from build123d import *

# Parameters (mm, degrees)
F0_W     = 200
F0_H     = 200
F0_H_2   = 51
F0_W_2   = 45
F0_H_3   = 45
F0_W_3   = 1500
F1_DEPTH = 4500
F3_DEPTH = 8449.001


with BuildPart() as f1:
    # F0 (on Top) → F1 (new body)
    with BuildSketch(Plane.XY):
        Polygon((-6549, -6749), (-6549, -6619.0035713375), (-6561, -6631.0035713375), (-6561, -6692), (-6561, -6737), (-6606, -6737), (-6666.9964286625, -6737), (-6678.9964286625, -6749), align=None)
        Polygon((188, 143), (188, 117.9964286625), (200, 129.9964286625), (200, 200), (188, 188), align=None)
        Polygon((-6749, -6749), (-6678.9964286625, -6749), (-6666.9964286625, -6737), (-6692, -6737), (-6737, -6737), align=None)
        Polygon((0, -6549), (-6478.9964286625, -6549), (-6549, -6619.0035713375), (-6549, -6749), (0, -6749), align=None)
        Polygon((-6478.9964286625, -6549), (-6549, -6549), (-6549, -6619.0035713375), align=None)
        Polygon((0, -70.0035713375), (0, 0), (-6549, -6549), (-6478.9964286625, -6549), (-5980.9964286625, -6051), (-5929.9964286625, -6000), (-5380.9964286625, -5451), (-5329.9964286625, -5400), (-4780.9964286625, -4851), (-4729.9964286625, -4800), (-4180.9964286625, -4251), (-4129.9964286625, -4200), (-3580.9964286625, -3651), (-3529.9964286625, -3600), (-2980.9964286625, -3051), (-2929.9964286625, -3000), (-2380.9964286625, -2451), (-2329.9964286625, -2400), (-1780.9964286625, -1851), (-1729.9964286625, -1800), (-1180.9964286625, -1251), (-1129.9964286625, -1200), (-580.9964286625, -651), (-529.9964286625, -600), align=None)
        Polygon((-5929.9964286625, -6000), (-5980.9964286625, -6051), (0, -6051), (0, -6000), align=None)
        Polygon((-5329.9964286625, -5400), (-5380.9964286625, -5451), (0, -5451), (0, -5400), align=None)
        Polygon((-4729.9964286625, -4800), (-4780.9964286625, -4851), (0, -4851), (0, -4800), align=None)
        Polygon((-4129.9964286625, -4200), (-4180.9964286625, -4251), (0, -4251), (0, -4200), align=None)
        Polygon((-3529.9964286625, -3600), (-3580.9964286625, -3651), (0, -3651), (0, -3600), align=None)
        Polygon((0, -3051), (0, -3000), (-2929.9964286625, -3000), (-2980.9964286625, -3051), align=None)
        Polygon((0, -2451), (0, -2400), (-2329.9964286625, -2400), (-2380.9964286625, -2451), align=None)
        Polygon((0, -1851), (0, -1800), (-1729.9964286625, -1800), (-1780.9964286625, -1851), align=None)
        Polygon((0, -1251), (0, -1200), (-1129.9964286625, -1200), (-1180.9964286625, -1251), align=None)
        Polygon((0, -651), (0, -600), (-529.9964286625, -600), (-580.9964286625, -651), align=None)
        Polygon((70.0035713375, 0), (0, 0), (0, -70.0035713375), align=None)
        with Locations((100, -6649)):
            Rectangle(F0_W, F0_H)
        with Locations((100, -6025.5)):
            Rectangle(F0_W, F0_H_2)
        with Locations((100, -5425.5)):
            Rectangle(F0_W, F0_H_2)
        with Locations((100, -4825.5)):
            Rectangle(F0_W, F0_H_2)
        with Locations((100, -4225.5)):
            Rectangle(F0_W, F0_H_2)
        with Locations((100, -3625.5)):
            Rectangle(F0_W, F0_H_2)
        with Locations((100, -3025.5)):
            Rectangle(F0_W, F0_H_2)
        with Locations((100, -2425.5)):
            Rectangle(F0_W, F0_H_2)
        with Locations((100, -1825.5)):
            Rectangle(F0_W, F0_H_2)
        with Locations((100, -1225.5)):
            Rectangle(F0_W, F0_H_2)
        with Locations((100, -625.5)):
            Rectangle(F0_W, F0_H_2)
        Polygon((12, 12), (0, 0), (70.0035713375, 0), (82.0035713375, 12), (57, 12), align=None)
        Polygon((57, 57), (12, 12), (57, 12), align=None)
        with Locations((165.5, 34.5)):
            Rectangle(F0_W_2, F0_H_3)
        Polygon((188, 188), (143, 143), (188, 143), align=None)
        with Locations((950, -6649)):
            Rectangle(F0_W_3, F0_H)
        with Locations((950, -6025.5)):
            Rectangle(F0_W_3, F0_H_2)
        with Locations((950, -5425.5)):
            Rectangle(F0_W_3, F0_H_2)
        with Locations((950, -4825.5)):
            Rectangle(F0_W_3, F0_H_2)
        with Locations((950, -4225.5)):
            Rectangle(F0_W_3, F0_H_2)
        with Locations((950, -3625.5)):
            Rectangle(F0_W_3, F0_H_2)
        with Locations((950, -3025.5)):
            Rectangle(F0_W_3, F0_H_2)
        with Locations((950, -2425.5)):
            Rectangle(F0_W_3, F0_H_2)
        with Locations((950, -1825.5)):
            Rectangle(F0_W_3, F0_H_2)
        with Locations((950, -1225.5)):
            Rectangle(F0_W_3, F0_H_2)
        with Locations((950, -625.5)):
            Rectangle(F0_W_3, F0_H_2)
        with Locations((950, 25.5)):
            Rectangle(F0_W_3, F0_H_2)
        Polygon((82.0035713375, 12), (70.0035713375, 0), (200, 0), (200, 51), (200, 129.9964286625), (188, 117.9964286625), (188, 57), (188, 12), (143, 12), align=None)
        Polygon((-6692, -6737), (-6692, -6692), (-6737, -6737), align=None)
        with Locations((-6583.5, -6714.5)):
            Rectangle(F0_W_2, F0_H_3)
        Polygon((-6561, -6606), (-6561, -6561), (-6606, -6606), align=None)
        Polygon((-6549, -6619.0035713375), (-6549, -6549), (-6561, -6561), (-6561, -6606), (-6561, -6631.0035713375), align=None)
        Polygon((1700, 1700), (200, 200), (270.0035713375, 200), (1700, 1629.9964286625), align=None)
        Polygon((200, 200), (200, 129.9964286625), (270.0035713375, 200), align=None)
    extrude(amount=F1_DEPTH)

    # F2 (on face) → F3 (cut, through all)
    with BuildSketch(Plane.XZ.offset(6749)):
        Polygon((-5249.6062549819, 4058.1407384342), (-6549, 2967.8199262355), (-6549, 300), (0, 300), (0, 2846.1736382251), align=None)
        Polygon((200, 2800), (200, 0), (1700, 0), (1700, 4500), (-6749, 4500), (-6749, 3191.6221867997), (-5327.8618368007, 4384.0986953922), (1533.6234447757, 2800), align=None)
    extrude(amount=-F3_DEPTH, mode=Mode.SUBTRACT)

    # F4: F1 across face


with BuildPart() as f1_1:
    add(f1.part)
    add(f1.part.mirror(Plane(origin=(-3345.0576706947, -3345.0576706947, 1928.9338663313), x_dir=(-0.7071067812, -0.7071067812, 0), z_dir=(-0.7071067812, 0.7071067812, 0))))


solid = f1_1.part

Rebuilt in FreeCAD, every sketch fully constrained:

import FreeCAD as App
import Part
import Sketcher
Q = App.Units.Quantity

doc = App.newDocument("Part")
body = doc.addObject("PartDesign::Body", "Body")

sketch1 = doc.addObject("Sketcher::SketchObject", "Sketch")
body.addObject(sketch1)
sketch1.AttachmentSupport = (doc.XY_Plane, [""])
sketch1.MapMode = "FlatFace"
sketch1.addGeometry([
    Part.LineSegment(App.Vector(-6561, -6692, 0), App.Vector(-6606, -6692, 0)),
    Part.LineSegment(App.Vector(-6606, -6692, 0), App.Vector(-6606, -6737, 0)),
    Part.LineSegment(App.Vector(-6606, -6737, 0), App.Vector(-6692, -6737, 0)),
    Part.LineSegment(App.Vector(-6692, -6737, 0), App.Vector(-6692, -6692, 0)),
    Part.LineSegment(App.Vector(-6692, -6692, 0), App.Vector(-6749, -6749, 0)),
    Part.LineSegment(App.Vector(-6749, -6749, 0), App.Vector(1700, -6749, 0)),
    Part.LineSegment(App.Vector(1700, -6749, 0), App.Vector(1700, -6549, 0)),
    Part.LineSegment(App.Vector(1700, -6549, 0), App.Vector(-6479, -6549, 0)),
    Part.LineSegment(App.Vector(-6479, -6549, 0), App.Vector(-5981, -6051, 0)),
    Part.LineSegment(App.Vector(-5981, -6051, 0), App.Vector(1700, -6051, 0)),
    Part.LineSegment(App.Vector(1700, -6051, 0), App.Vector(1700, -6000, 0)),
    Part.LineSegment(App.Vector(1700, -6000, 0), App.Vector(-5930, -6000, 0)),
    Part.LineSegment(App.Vector(-5930, -6000, 0), App.Vector(-5381, -5451, 0)),
    Part.LineSegment(App.Vector(-5381, -5451, 0), App.Vector(1700, -5451, 0)),
    Part.LineSegment(App.Vector(1700, -5451, 0), App.Vector(1700, -5400, 0)),
    Part.LineSegment(App.Vector(1700, -5400, 0), App.Vector(-5330, -5400, 0)),
    Part.LineSegment(App.Vector(-5330, -5400, 0), App.Vector(-4781, -4851, 0)),
    Part.LineSegment(App.Vector(-4781, -4851, 0), App.Vector(1700, -4851, 0)),
    Part.LineSegment(App.Vector(1700, -4851, 0), App.Vector(1700, -4800, 0)),
    Part.LineSegment(App.Vector(1700, -4800, 0), App.Vector(-4730, -4800, 0)),
    Part.LineSegment(App.Vector(-4730, -4800, 0), App.Vector(-4181, -4251, 0)),
    Part.LineSegment(App.Vector(-4181, -4251, 0), App.Vector(1700, -4251, 0)),
    Part.LineSegment(App.Vector(1700, -4251, 0), App.Vector(1700, -4200, 0)),
    Part.LineSegment(App.Vector(1700, -4200, 0), App.Vector(-4130, -4200, 0)),
    Part.LineSegment(App.Vector(-4130, -4200, 0), App.Vector(-3581, -3651, 0)),
    Part.LineSegment(App.Vector(-3581, -3651, 0), App.Vector(1700, -3651, 0)),
    Part.LineSegment(App.Vector(1700, -3651, 0), App.Vector(1700, -3600, 0)),
    Part.LineSegment(App.Vector(1700, -3600, 0), App.Vector(-3530, -3600, 0)),
    Part.LineSegment(App.Vector(-3530, -3600, 0), App.Vector(-2981, -3051, 0)),
    Part.LineSegment(App.Vector(-2981, -3051, 0), App.Vector(1700, -3051, 0)),
    Part.LineSegment(App.Vector(1700, -3051, 0), App.Vector(1700, -3000, 0)),
    Part.LineSegment(App.Vector(1700, -3000, 0), App.Vector(-2930, -3000, 0)),
    Part.LineSegment(App.Vector(-2930, -3000, 0), App.Vector(-2381, -2451, 0)),
    Part.LineSegment(App.Vector(-2381, -2451, 0), App.Vector(1700, -2451, 0)),
    Part.LineSegment(App.Vector(1700, -2451, 0), App.Vector(1700, -2400, 0)),
    Part.LineSegment(App.Vector(1700, -2400, 0), App.Vector(-2330, -2400, 0)),
    Part.LineSegment(App.Vector(-2330, -2400, 0), App.Vector(-1781, -1851, 0)),
    Part.LineSegment(App.Vector(-1781, -1851, 0), App.Vector(1700, -1851, 0)),
    Part.LineSegment(App.Vector(1700, -1851, 0), App.Vector(1700, -1800, 0)),
    Part.LineSegment(App.Vector(1700, -1800, 0), App.Vector(-1730, -1800, 0)),
    Part.LineSegment(App.Vector(-1730, -1800, 0), App.Vector(-1181, -1251, 0)),
    Part.LineSegment(App.Vector(-1181, -1251, 0), App.Vector(1700, -1251, 0)),
    Part.LineSegment(App.Vector(1700, -1251, 0), App.Vector(1700, -1200, 0)),
    Part.LineSegment(App.Vector(1700, -1200, 0), App.Vector(-1130, -1200, 0)),
    Part.LineSegment(App.Vector(-1130, -1200, 0), App.Vector(-581, -651, 0)),
    Part.LineSegment(App.Vector(-581, -651, 0), App.Vector(1700, -651, 0)),
    Part.LineSegment(App.Vector(1700, -651, 0), App.Vector(1700, -600, 0)),
    Part.LineSegment(App.Vector(1700, -600, 0), App.Vector(-530, -600, 0)),
    Part.LineSegment(App.Vector(-530, -600, 0), App.Vector(70, 0, 0)),
    Part.LineSegment(App.Vector(70, 0, 0), App.Vector(1700, 0, 0)),
    Part.LineSegment(App.Vector(1700, 0, 0), App.Vector(1700, 51, 0)),
    Part.LineSegment(App.Vector(1700, 51, 0), App.Vector(200, 51, 0)),
    Part.LineSegment(App.Vector(200, 51, 0), App.Vector(200, 130, 0)),
    Part.LineSegment(App.Vector(200, 130, 0), App.Vector(1700, 1630, 0)),
    Part.LineSegment(App.Vector(1700, 1630, 0), App.Vector(1700, 1700, 0)),
    Part.LineSegment(App.Vector(1700, 1700, 0), App.Vector(143, 143, 0)),
    Part.LineSegment(App.Vector(143, 143, 0), App.Vector(188, 143, 0)),
    Part.LineSegment(App.Vector(188, 143, 0), App.Vector(188, 57, 0)),
    Part.LineSegment(App.Vector(188, 57, 0), App.Vector(143, 57, 0)),
    Part.LineSegment(App.Vector(143, 57, 0), App.Vector(143, 12, 0)),
    Part.LineSegment(App.Vector(143, 12, 0), App.Vector(57, 12, 0)),
    Part.LineSegment(App.Vector(57, 12, 0), App.Vector(57, 57, 0)),
    Part.LineSegment(App.Vector(57, 57, 0), App.Vector(-6606, -6606, 0)),
    Part.LineSegment(App.Vector(-6606, -6606, 0), App.Vector(-6561, -6606, 0)),
    Part.LineSegment(App.Vector(-6561, -6606, 0), App.Vector(-6561, -6692, 0)),
], False)
sketch1.addConstraint([
    Sketcher.Constraint("Coincident", 0, 2, 1, 1),
    Sketcher.Constraint("Coincident", 1, 2, 2, 1),
    Sketcher.Constraint("Coincident", 2, 2, 3, 1),
    Sketcher.Constraint("Coincident", 3, 2, 4, 1),
    Sketcher.Constraint("Coincident", 4, 2, 5, 1),
    Sketcher.Constraint("Coincident", 5, 2, 6, 1),
    Sketcher.Constraint("Coincident", 6, 2, 7, 1),
    Sketcher.Constraint("Coincident", 7, 2, 8, 1),
    Sketcher.Constraint("Coincident", 8, 2, 9, 1),
    Sketcher.Constraint("Coincident", 9, 2, 10, 1),
    Sketcher.Constraint("Coincident", 10, 2, 11, 1),
    Sketcher.Constraint("Coincident", 11, 2, 12, 1),
    Sketcher.Constraint("Coincident", 12, 2, 13, 1),
    Sketcher.Constraint("Coincident", 13, 2, 14, 1),
    Sketcher.Constraint("Coincident", 14, 2, 15, 1),
    Sketcher.Constraint("Coincident", 15, 2, 16, 1),
    Sketcher.Constraint("Coincident", 16, 2, 17, 1),
    Sketcher.Constraint("Coincident", 17, 2, 18, 1),
    Sketcher.Constraint("Coincident", 18, 2, 19, 1),
    Sketcher.Constraint("Coincident", 19, 2, 20, 1),
    Sketcher.Constraint("Coincident", 20, 2, 21, 1),
    Sketcher.Constraint("Coincident", 21, 2, 22, 1),
    Sketcher.Constraint("Coincident", 22, 2, 23, 1),
    Sketcher.Constraint("Coincident", 23, 2, 24, 1),
    Sketcher.Constraint("Coincident", 24, 2, 25, 1),
    Sketcher.Constraint("Coincident", 25, 2, 26, 1),
    Sketcher.Constraint("Coincident", 26, 2, 27, 1),
    Sketcher.Constraint("Coincident", 27, 2, 28, 1),
    Sketcher.Constraint("Coincident", 28, 2, 29, 1),
    Sketcher.Constraint("Coincident", 29, 2, 30, 1),
    Sketcher.Constraint("Coincident", 30, 2, 31, 1),
    Sketcher.Constraint("Coincident", 31, 2, 32, 1),
    Sketcher.Constraint("Coincident", 32, 2, 33, 1),
    Sketcher.Constraint("Coincident", 33, 2, 34, 1),
    Sketcher.Constraint("Coincident", 34, 2, 35, 1),
    Sketcher.Constraint("Coincident", 35, 2, 36, 1),
    Sketcher.Constraint("Coincident", 36, 2, 37, 1),
    Sketcher.Constraint("Coincident", 37, 2, 38, 1),
    Sketcher.Constraint("Coincident", 38, 2, 39, 1),
    Sketcher.Constraint("Coincident", 39, 2, 40, 1),
    Sketcher.Constraint("Coincident", 40, 2, 41, 1),
    Sketcher.Constraint("Coincident", 41, 2, 42, 1),
    Sketcher.Constraint("Coincident", 42, 2, 43, 1),
    Sketcher.Constraint("Coincident", 43, 2, 44, 1),
    Sketcher.Constraint("Coincident", 44, 2, 45, 1),
    Sketcher.Constraint("Coincident", 45, 2, 46, 1),
    Sketcher.Constraint("Coincident", 46, 2, 47, 1),
    Sketcher.Constraint("Coincident", 47, 2, 48, 1),
    Sketcher.Constraint("Coincident", 48, 2, 49, 1),
    Sketcher.Constraint("Coincident", 49, 2, 50, 1),
    Sketcher.Constraint("Coincident", 50, 2, 51, 1),
    Sketcher.Constraint("Coincident", 51, 2, 52, 1),
    Sketcher.Constraint("Coincident", 52, 2, 53, 1),
    Sketcher.Constraint("Coincident", 53, 2, 54, 1),
    Sketcher.Constraint("Coincident", 54, 2, 55, 1),
    Sketcher.Constraint("Coincident", 55, 2, 56, 1),
    Sketcher.Constraint("Coincident", 56, 2, 57, 1),
    Sketcher.Constraint("Coincident", 57, 2, 58, 1),
    Sketcher.Constraint("Coincident", 58, 2, 59, 1),
    Sketcher.Constraint("Coincident", 59, 2, 60, 1),
    Sketcher.Constraint("Coincident", 60, 2, 61, 1),
    Sketcher.Constraint("Coincident", 61, 2, 62, 1),
    Sketcher.Constraint("Coincident", 62, 2, 63, 1),
    Sketcher.Constraint("Coincident", 63, 2, 64, 1),
    Sketcher.Constraint("Coincident", 64, 2, 0, 1),
    Sketcher.Constraint("Horizontal", 0),
    Sketcher.Constraint("Vertical", 1),
    Sketcher.Constraint("Horizontal", 2),
    Sketcher.Constraint("Vertical", 3),
    Sketcher.Constraint("Horizontal", 5),
    Sketcher.Constraint("Vertical", 6),
    Sketcher.Constraint("Horizontal", 7),
    Sketcher.Constraint("Horizontal", 9),
    Sketcher.Constraint("Vertical", 10),
    Sketcher.Constraint("Horizontal", 11),
    Sketcher.Constraint("Horizontal", 13),
    Sketcher.Constraint("Vertical", 14),
    Sketcher.Constraint("Horizontal", 15),
    Sketcher.Constraint("Horizontal", 17),
    Sketcher.Constraint("Vertical", 18),
    Sketcher.Constraint("Horizontal", 19),
    Sketcher.Constraint("Horizontal", 21),
    Sketcher.Constraint("Vertical", 22),
    Sketcher.Constraint("Horizontal", 23),
    Sketcher.Constraint("Horizontal", 25),
    Sketcher.Constraint("Vertical", 26),
    Sketcher.Constraint("Horizontal", 27),
    Sketcher.Constraint("Horizontal", 29),
    Sketcher.Constraint("Vertical", 30),
    Sketcher.Constraint("Horizontal", 31),
    Sketcher.Constraint("Horizontal", 33),
    Sketcher.Constraint("Vertical", 34),
    Sketcher.Constraint("Horizontal", 35),
    Sketcher.Constraint("Horizontal", 37),
    Sketcher.Constraint("Vertical", 38),
    Sketcher.Constraint("Horizontal", 39),
    Sketcher.Constraint("Horizontal", 41),
    Sketcher.Constraint("Vertical", 42),
    Sketcher.Constraint("Horizontal", 43),
    Sketcher.Constraint("Horizontal", 45),
    Sketcher.Constraint("Vertical", 46),
    Sketcher.Constraint("Horizontal", 47),
    Sketcher.Constraint("Horizontal", 49),
    Sketcher.Constraint("Vertical", 50),
    Sketcher.Constraint("Horizontal", 51),
    Sketcher.Constraint("Vertical", 52),
    Sketcher.Constraint("Vertical", 54),
    Sketcher.Constraint("Horizontal", 56),
    Sketcher.Constraint("Vertical", 57),
    Sketcher.Constraint("Horizontal", 58),
    Sketcher.Constraint("Vertical", 59),
    Sketcher.Constraint("Horizontal", 60),
    Sketcher.Constraint("Vertical", 61),
    Sketcher.Constraint("Horizontal", 63),
    Sketcher.Constraint("Vertical", 64),
    Sketcher.Constraint("PointOnObject", 48, 2, -1),
    Sketcher.Constraint("Parallel", 4, 8),
    Sketcher.Constraint("Parallel", 8, 12),
    Sketcher.Constraint("Parallel", 12, 16),
    Sketcher.Constraint("Parallel", 16, 20),
    Sketcher.Constraint("Parallel", 20, 24),
    Sketcher.Constraint("Parallel", 24, 28),
    Sketcher.Constraint("Parallel", 28, 32),
    Sketcher.Constraint("Parallel", 32, 36),
    Sketcher.Constraint("Parallel", 36, 40),
    Sketcher.Constraint("Parallel", 40, 44),
    Sketcher.Constraint("Parallel", 44, 48),
    Sketcher.Constraint("Parallel", 48, 53),
    Sketcher.Constraint("Parallel", 53, 55),
    Sketcher.Constraint("Parallel", 55, 62),
    Sketcher.Constraint("Horizontal", 0, 2, 3, 2),
    Sketcher.Constraint("Horizontal", 58, 2, 61, 2),
    Sketcher.Constraint("Vertical", 6, 2, 9, 2),
    Sketcher.Constraint("Vertical", 10, 2, 13, 2),
    Sketcher.Constraint("Vertical", 14, 2, 17, 2),
    Sketcher.Constraint("Vertical", 18, 2, 21, 2),
    Sketcher.Constraint("Vertical", 22, 2, 25, 2),
    Sketcher.Constraint("Vertical", 26, 2, 29, 2),
    Sketcher.Constraint("Vertical", 30, 2, 33, 2),
    Sketcher.Constraint("Vertical", 34, 2, 37, 2),
    Sketcher.Constraint("Vertical", 38, 2, 41, 2),
    Sketcher.Constraint("Vertical", 42, 2, 45, 2),
    Sketcher.Constraint("Vertical", 46, 2, 49, 2),
    Sketcher.Constraint("Vertical", 50, 2, 53, 2),
    Sketcher.Constraint("Vertical", 55, 2, 58, 2),
    Sketcher.Constraint("Vertical", 1, 2, 62, 2),
    Sketcher.Constraint("Equal", 0, 56),
    Sketcher.Constraint("Equal", 2, 60),
    Sketcher.Constraint("Equal", 63, 1),
    Sketcher.Constraint("Equal", 10, 14),
    Sketcher.Constraint("Equal", 14, 18),
    Sketcher.Constraint("Equal", 18, 22),
    Sketcher.Constraint("Equal", 22, 26),
    Sketcher.Constraint("Equal", 26, 30),
    Sketcher.Constraint("Equal", 30, 34),
    Sketcher.Constraint("Equal", 34, 38),
    Sketcher.Constraint("Equal", 38, 42),
    Sketcher.Constraint("Equal", 42, 46),
    Sketcher.Constraint("Equal", 46, 50),
    Sketcher.Constraint("Equal", 60, 57),
    Sketcher.Constraint("Equal", 3, 59),
    Sketcher.Constraint("Equal", 57, 64),
    Sketcher.Constraint("Equal", 12, 16),
    Sketcher.Constraint("Equal", 16, 20),
    Sketcher.Constraint("Equal", 20, 24),
    Sketcher.Constraint("Equal", 24, 28),
    Sketcher.Constraint("Equal", 28, 32),
    Sketcher.Constraint("Equal", 32, 36),
    Sketcher.Constraint("Equal", 36, 40),
    Sketcher.Constraint("Equal", 40, 44),
    Sketcher.Constraint("DistanceX", 0, 2, 0, 1, Q("45 mm")),
    Sketcher.Constraint("DistanceX", 2, 2, 2, 1, Q("86 mm")),
    Sketcher.Constraint("DistanceX", 5, 1, 5, 2, Q("8449 mm")),
    Sketcher.Constraint("DistanceX", 51, 2, 51, 1, Q("1500 mm")),
    Sketcher.Constraint("DistanceY", 6, 1, 6, 2, Q("200 mm")),
    Sketcher.Constraint("DistanceY", 10, 1, 10, 2, Q("51 mm")),
    Sketcher.Constraint("Angle", 8, Q("45 deg")),
    Sketcher.Constraint("DistanceX", 0, 2, -1, 1, Q("6606 mm")),
    Sketcher.Constraint("DistanceY", 0, 2, -1, 1, Q("6692 mm")),
    Sketcher.Constraint("DistanceX", 4, 2, -1, 1, Q("6749 mm")),
    Sketcher.Constraint("DistanceY", 8, 2, -1, 1, Q("6051 mm")),
    Sketcher.Constraint("DistanceY", 12, 2, -1, 1, Q("5451 mm")),
    Sketcher.Constraint("DistanceX", -1, 1, 55, 2, Q("143 mm")),
    Sketcher.Constraint("DistanceX", 7, 2, 7, 1, Q("8178.996429 mm")),
    Sketcher.Constraint("DistanceX", 11, 2, 11, 1, Q("7629.996429 mm")),
    Sketcher.Constraint("DistanceX", 15, 2, 15, 1, Q("7029.996429 mm")),
    Sketcher.Constraint("DistanceX", 19, 2, 19, 1, Q("6429.996429 mm")),
    Sketcher.Constraint("DistanceX", 23, 2, 23, 1, Q("5829.996429 mm")),
    Sketcher.Constraint("DistanceX", 27, 2, 27, 1, Q("5229.996429 mm")),
    Sketcher.Constraint("DistanceX", 31, 2, 31, 1, Q("4629.996429 mm")),
    Sketcher.Constraint("DistanceX", 35, 2, 35, 1, Q("4029.996429 mm")),
    Sketcher.Constraint("DistanceX", 39, 2, 39, 1, Q("3429.996429 mm")),
    Sketcher.Constraint("DistanceX", 43, 2, 43, 1, Q("2829.996429 mm")),
    Sketcher.Constraint("DistanceX", 47, 2, 47, 1, Q("2229.996429 mm")),
    Sketcher.Constraint("DistanceY", 52, 1, 52, 2, Q("78.996429 mm")),
])
pad1 = doc.addObject("PartDesign::Pad", "Pad")
body.addObject(pad1)
pad1.Profile = sketch1
pad1.Length = 4500

sketch2 = doc.addObject("Sketcher::SketchObject", "Sketch001")
body.addObject(sketch2)
sketch2.AttachmentSupport = (doc.XZ_Plane, [""])
sketch2.MapMode = "FlatFace"
sketch2.AttachmentOffset = App.Placement(App.Vector(0, 0, 6749), App.Rotation())
sketch2.addGeometry([
    Part.LineSegment(App.Vector(-5250, 4058, 0), App.Vector(-6549, 2968, 0)),
    Part.LineSegment(App.Vector(-6549, 2968, 0), App.Vector(-6549, 300, 0)),
    Part.LineSegment(App.Vector(-6549, 300, 0), App.Vector(0, 300, 0)),
    Part.LineSegment(App.Vector(0, 300, 0), App.Vector(0, 2846, 0)),
    Part.LineSegment(App.Vector(0, 2846, 0), App.Vector(-5250, 4058, 0)),
    Part.LineSegment(App.Vector(200, 2800, 0), App.Vector(200, 0, 0)),
    Part.LineSegment(App.Vector(200, 0, 0), App.Vector(1700, 0, 0)),
    Part.LineSegment(App.Vector(1700, 0, 0), App.Vector(1700, 4500, 0)),
    Part.LineSegment(App.Vector(1700, 4500, 0), App.Vector(-6749, 4500, 0)),
    Part.LineSegment(App.Vector(-6749, 4500, 0), App.Vector(-6749, 3192, 0)),
    Part.LineSegment(App.Vector(-6749, 3192, 0), App.Vector(-5328, 4384, 0)),
    Part.LineSegment(App.Vector(-5328, 4384, 0), App.Vector(1534, 2800, 0)),
    Part.LineSegment(App.Vector(1534, 2800, 0), App.Vector(200, 2800, 0)),
], False)
sketch2.addConstraint([
    Sketcher.Constraint("Coincident", 0, 2, 1, 1),
    Sketcher.Constraint("Coincident", 1, 2, 2, 1),
    Sketcher.Constraint("Coincident", 2, 2, 3, 1),
    Sketcher.Constraint("Coincident", 3, 2, 4, 1),
    Sketcher.Constraint("Coincident", 4, 2, 0, 1),
    Sketcher.Constraint("Coincident", 5, 2, 6, 1),
    Sketcher.Constraint("Coincident", 6, 2, 7, 1),
    Sketcher.Constraint("Coincident", 7, 2, 8, 1),
    Sketcher.Constraint("Coincident", 8, 2, 9, 1),
    Sketcher.Constraint("Coincident", 9, 2, 10, 1),
    Sketcher.Constraint("Coincident", 10, 2, 11, 1),
    Sketcher.Constraint("Coincident", 11, 2, 12, 1),
    Sketcher.Constraint("Coincident", 12, 2, 5, 1),
    Sketcher.Constraint("Vertical", 1),
    Sketcher.Constraint("Horizontal", 2),
    Sketcher.Constraint("Vertical", 3),
    Sketcher.Constraint("Vertical", 5),
    Sketcher.Constraint("Horizontal", 6),
    Sketcher.Constraint("Vertical", 7),
    Sketcher.Constraint("Horizontal", 8),
    Sketcher.Constraint("Vertical", 9),
    Sketcher.Constraint("Horizontal", 12),
    Sketcher.Constraint("PointOnObject", 2, 2, -2),
    Sketcher.Constraint("PointOnObject", 5, 2, -1),
    Sketcher.Constraint("Parallel", 0, 10),
    Sketcher.Constraint("Parallel", 4, 11),
    Sketcher.Constraint("DistanceX", 2, 1, 2, 2, Q("6549 mm")),
    Sketcher.Constraint("DistanceX", 6, 1, 6, 2, Q("1500 mm")),
    Sketcher.Constraint("DistanceX", 8, 2, 8, 1, Q("8449 mm")),
    Sketcher.Constraint("DistanceY", 5, 2, 5, 1, Q("2800 mm")),
    Sketcher.Constraint("DistanceY", 7, 1, 7, 2, Q("4500 mm")),
    Sketcher.Constraint("Angle", 0, Q("-140 deg")),
    Sketcher.Constraint("Angle", 4, Q("167 deg")),
    Sketcher.Constraint("DistanceY", -1, 1, 1, 2, Q("300 mm")),
    Sketcher.Constraint("DistanceX", -1, 1, 5, 2, Q("200 mm")),
    Sketcher.Constraint("DistanceY", 3, 1, 3, 2, Q("2546.173638 mm")),
    Sketcher.Constraint("DistanceY", 3, 2, 4, 2, Q("1211.9671 mm")),
    Sketcher.Constraint("Distance", 11, Q("7041.97053 mm")),
    Sketcher.Constraint("DistanceX", 12, 2, 12, 1, Q("1333.623445 mm")),
])
pocket1 = doc.addObject("PartDesign::Pocket", "Pocket")
body.addObject(pocket1)
pocket1.Profile = sketch2
pocket1.Type = "ThroughAll"
body2 = doc.addObject("PartDesign::Body", "Body001")
doc.recompute()

body2.BaseFeature = body
doc.recompute()

mirroring = doc.addObject("Part::Mirroring", "Mirroring")
mirroring.Source = body
mirroring.Base = App.Vector(-3345.057671, -3345.057671, 1928.933866)
mirroring.Normal = App.Vector(-0.707106781, 0.707106781, 0)
body3 = doc.addObject("PartDesign::Body", "Body002")
body3.BaseFeature = mirroring
boolean = doc.addObject("PartDesign::Boolean", "Boolean")
body2.addObject(boolean)
boolean.Type = "Fuse"
boolean.addObjects([body3])
doc.recompute()
mirroring.Visibility = False

doc.recompute()
